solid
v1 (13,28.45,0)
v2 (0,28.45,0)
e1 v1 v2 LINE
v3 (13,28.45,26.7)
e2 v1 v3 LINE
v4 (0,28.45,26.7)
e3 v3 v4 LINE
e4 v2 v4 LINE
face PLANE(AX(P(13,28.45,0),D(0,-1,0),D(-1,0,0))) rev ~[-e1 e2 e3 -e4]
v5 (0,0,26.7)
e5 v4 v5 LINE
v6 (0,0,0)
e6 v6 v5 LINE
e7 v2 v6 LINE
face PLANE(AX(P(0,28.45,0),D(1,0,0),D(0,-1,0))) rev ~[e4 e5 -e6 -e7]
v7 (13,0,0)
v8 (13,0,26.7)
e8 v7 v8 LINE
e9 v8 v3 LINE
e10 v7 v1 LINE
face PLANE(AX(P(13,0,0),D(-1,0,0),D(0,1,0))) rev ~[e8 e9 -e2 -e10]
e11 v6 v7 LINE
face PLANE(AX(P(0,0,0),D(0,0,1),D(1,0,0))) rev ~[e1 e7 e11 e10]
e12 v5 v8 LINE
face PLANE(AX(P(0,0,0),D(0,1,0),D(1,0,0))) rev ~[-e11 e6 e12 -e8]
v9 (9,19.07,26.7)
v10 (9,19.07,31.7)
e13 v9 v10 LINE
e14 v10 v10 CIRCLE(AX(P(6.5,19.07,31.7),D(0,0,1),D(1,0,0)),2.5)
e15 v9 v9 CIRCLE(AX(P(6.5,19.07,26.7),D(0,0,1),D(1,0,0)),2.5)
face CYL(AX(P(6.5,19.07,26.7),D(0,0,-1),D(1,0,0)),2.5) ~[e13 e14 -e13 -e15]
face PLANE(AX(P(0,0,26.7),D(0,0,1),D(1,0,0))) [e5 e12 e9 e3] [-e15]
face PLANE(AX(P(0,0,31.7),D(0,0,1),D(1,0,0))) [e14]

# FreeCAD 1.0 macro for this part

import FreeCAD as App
import Part
import Sketcher

V = App.Vector
Q = App.Units.Quantity


def add_polygon(sketch, points):
    """Adds a closed chain of lines whose ends are joined by coincident constraints."""
    first, n = sketch.GeometryCount, len(points)
    for a, b in zip(points, points[1:] + points[:1]):
        sketch.addGeometry(Part.LineSegment(App.Vector(*a, 0), App.Vector(*b, 0)), False)
    for i in range(n):
        sketch.addConstraint(Sketcher.Constraint("Coincident", first + i, 2, first + (i + 1) % n, 1))

doc = App.newDocument("Part")
body = doc.addObject("PartDesign::Body", "Body")

# Sketch on XY plane
sketch1 = body.newObject("Sketcher::SketchObject", "Sketch")
sketch1.AttachmentSupport = (doc.getObject("XY_Plane"), [""])
sketch1.MapMode = "FlatFace"
add_polygon(sketch1, [(0, 28.45), (0, 0), (13, 0), (13, 28.45)])  # lines 0-3
sketch1.addConstraint([
    Sketcher.Constraint("Vertical", 0),
    Sketcher.Constraint("Horizontal", 1),
    Sketcher.Constraint("Vertical", 2),
    Sketcher.Constraint("Horizontal", 3),
    Sketcher.Constraint("Coincident", 0, 2, -1, 1),
    Sketcher.Constraint("DistanceX", 1, 1, 1, 2, Q("13 mm")),
    Sketcher.Constraint("DistanceY", 0, 2, 0, 1, Q("28.45 mm")),
])
pad1 = body.newObject("PartDesign::Pad", "Pad")
pad1.Profile = sketch1
pad1.Length = 26.7

# Sketch on XY plane
sketch2 = body.newObject("Sketcher::SketchObject", "Sketch001")
sketch2.AttachmentSupport = (doc.getObject("XY_Plane"), [""])
sketch2.MapMode = "FlatFace"
sketch2.AttachmentOffset = App.Placement(V(0, 0, 26.7), App.Rotation())
sketch2.addGeometry(Part.Circle(V(6.5, 19.07, 0), V(0, 0, 1), 2.5), False)
sketch2.addConstraint([
    Sketcher.Constraint("Diameter", 0, Q("5 mm")),
    Sketcher.Constraint("DistanceX", -1, 1, 0, 3, Q("6.5 mm")),
    Sketcher.Constraint("DistanceY", -1, 1, 0, 3, Q("19.07 mm")),
])
pad2 = body.newObject("PartDesign::Pad", "Pad001")
pad2.Profile = sketch2
pad2.Length = 5

doc.recompute()
